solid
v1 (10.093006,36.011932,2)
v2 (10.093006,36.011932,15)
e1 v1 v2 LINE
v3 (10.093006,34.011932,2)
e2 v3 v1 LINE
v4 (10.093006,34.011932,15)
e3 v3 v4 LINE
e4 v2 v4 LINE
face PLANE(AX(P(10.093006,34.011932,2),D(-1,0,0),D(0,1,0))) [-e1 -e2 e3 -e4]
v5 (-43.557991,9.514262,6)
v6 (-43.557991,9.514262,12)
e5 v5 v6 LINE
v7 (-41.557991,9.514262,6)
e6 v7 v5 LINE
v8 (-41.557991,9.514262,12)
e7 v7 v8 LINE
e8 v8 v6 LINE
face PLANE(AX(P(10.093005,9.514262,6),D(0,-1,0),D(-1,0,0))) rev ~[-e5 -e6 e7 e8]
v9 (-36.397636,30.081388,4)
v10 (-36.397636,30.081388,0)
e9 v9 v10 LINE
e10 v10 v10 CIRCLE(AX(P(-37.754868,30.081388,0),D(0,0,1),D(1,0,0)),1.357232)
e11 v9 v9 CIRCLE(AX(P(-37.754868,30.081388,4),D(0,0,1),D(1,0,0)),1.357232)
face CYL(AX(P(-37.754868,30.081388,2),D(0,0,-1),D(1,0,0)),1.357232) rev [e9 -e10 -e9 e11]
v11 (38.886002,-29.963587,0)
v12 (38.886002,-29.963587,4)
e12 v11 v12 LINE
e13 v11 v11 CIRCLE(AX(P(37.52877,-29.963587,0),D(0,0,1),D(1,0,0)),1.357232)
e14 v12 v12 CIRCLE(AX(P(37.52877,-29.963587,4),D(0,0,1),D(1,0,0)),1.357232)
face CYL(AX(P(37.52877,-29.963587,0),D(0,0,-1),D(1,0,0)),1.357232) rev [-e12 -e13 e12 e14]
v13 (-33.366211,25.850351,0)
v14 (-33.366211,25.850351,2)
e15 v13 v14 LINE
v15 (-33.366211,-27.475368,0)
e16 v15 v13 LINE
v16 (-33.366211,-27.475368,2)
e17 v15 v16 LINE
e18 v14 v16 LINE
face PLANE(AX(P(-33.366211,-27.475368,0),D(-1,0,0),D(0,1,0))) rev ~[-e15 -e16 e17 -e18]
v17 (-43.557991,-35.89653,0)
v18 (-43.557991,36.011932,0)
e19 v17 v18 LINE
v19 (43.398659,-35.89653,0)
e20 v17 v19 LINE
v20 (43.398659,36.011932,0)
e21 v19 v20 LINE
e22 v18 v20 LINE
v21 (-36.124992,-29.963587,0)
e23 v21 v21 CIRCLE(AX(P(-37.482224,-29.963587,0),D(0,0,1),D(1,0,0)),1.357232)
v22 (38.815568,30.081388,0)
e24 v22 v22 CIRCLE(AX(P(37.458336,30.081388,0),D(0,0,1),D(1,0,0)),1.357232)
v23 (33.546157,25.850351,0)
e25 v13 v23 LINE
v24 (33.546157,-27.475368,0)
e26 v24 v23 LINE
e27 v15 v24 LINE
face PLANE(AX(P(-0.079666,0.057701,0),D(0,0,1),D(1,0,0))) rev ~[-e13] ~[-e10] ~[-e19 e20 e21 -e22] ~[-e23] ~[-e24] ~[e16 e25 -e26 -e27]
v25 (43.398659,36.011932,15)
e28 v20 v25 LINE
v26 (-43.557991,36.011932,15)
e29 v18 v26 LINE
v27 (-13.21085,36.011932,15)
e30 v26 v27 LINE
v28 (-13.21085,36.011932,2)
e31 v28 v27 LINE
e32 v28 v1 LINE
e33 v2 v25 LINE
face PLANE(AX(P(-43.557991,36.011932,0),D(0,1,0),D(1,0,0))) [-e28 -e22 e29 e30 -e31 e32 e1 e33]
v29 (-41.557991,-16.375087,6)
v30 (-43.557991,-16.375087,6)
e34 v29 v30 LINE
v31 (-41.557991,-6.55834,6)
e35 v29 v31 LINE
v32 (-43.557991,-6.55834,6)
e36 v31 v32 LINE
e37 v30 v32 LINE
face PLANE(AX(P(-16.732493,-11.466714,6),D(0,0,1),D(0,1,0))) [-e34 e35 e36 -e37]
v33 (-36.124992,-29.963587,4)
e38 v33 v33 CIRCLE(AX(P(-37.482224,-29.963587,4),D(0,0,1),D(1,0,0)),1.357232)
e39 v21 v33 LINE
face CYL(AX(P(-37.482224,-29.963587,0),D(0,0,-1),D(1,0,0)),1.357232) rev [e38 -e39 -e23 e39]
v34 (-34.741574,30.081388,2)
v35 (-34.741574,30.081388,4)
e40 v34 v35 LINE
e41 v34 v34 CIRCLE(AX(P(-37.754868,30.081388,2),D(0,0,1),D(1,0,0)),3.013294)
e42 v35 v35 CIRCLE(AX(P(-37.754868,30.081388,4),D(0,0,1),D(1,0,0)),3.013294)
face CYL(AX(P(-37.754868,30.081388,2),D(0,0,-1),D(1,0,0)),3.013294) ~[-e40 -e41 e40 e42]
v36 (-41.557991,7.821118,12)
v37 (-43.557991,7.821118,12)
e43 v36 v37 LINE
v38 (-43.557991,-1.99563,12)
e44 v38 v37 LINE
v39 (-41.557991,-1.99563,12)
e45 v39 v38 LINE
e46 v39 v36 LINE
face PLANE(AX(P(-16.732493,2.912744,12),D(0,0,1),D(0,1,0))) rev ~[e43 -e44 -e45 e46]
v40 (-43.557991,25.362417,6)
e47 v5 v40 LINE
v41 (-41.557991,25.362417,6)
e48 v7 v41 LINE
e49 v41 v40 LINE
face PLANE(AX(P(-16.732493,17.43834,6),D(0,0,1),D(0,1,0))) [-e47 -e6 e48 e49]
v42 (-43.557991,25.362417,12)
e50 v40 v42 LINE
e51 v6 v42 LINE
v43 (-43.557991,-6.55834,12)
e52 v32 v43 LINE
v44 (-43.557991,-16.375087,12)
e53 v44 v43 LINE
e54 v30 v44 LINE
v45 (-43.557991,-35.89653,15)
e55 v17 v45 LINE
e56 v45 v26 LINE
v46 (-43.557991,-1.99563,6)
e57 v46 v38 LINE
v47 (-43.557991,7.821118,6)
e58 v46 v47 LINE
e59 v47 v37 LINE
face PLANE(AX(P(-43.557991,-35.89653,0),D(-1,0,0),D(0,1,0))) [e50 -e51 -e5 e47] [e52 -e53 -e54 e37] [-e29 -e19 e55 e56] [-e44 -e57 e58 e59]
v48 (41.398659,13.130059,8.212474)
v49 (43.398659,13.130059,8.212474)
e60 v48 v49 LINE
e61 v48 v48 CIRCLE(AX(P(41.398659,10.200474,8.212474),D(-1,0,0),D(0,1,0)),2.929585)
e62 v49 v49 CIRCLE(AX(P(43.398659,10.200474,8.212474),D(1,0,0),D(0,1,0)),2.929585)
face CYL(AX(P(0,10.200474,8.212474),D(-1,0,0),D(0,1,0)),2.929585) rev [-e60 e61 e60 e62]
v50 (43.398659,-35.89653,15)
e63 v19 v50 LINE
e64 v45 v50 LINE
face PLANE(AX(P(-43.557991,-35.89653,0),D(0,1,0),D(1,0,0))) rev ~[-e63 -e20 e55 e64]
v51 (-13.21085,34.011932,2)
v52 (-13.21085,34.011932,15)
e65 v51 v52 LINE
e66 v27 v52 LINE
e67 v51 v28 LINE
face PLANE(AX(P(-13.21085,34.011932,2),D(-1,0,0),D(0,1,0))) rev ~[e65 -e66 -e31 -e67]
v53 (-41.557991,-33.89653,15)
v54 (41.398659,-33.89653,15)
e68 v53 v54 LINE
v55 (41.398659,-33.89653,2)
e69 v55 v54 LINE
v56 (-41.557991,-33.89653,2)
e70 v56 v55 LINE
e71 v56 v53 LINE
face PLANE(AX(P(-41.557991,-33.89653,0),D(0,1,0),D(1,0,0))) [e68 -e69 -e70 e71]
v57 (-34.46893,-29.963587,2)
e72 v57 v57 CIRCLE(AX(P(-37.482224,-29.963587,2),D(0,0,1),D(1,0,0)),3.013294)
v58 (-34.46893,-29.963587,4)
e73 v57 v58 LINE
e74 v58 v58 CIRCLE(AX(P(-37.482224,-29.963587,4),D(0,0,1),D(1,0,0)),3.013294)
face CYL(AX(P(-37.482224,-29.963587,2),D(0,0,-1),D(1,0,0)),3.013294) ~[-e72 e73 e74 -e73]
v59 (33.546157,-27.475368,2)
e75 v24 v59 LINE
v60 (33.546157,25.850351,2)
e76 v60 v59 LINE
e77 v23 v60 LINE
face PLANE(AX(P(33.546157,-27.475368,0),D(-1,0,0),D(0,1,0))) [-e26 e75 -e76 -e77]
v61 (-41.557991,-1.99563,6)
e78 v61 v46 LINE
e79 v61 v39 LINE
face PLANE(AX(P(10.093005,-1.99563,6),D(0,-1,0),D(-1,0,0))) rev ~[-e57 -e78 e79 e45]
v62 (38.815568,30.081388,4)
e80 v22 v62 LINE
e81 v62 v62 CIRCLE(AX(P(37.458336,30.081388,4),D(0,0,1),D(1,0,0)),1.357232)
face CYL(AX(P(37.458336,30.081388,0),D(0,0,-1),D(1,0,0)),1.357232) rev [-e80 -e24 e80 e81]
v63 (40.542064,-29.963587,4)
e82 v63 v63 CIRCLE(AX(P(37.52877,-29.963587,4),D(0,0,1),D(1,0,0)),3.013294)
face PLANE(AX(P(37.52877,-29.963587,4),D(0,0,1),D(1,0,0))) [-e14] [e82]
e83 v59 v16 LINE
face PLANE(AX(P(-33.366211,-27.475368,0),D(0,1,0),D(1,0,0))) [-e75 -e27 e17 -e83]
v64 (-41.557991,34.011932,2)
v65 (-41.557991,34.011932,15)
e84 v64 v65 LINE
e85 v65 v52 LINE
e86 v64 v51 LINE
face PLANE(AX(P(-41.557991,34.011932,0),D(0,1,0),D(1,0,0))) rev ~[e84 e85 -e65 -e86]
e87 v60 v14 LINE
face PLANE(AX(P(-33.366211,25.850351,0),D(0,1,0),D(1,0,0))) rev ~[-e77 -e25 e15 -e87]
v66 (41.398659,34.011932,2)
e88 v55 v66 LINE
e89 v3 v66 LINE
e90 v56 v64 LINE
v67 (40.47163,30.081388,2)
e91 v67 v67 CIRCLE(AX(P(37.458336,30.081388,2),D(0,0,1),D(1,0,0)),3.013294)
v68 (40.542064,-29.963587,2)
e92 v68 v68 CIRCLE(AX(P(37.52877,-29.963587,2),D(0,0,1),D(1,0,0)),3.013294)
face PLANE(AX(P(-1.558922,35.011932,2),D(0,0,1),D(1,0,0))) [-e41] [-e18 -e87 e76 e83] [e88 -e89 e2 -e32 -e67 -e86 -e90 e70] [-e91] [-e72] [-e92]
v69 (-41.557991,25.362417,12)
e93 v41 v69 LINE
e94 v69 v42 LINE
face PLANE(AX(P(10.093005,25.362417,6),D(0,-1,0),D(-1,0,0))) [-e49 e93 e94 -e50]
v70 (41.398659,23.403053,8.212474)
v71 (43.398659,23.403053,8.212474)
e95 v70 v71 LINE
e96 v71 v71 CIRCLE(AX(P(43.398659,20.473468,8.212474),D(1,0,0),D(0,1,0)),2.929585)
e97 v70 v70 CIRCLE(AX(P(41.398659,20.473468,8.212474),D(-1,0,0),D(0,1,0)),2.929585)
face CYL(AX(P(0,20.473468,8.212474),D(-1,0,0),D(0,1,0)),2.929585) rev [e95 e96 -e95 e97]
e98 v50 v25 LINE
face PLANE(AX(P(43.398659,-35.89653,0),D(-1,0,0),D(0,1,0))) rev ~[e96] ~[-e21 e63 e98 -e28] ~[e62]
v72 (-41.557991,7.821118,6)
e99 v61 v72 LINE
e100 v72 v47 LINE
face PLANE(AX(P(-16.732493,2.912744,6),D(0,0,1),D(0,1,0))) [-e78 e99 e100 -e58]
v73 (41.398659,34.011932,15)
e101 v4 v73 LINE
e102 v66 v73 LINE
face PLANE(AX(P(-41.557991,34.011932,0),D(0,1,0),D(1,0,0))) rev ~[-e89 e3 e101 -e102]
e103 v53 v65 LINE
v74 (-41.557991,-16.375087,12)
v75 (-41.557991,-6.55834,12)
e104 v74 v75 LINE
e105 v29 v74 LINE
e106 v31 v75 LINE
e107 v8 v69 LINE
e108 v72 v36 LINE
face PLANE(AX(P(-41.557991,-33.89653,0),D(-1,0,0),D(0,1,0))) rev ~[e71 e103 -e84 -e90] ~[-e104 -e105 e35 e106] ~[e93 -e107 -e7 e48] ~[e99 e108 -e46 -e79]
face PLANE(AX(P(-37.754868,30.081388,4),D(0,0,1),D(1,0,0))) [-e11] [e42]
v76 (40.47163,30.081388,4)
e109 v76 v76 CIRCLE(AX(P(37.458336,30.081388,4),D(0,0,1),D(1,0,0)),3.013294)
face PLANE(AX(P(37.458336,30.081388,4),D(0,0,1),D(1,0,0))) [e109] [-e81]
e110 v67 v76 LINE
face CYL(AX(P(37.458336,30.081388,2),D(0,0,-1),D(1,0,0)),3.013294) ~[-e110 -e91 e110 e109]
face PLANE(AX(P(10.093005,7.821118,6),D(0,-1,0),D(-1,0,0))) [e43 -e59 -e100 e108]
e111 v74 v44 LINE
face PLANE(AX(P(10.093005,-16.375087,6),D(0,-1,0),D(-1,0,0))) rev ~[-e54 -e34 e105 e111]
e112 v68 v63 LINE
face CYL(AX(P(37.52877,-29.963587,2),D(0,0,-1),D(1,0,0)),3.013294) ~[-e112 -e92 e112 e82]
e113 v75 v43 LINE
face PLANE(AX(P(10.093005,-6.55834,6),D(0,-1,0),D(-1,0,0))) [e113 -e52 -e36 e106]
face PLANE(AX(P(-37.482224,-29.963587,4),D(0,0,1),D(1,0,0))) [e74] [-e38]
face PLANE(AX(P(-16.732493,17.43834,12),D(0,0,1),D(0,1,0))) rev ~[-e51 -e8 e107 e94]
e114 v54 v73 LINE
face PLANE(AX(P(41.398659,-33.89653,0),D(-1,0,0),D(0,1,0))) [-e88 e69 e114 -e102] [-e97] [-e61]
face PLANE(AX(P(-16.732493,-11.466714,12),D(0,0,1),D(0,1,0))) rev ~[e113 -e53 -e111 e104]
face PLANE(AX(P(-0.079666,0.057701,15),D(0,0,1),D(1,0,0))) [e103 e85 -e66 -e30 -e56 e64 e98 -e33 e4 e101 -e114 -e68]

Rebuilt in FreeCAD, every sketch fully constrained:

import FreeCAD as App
import Part
import Sketcher
Q = App.Units.Quantity


def add_polygon(sketch, points):
    """Adds a closed chain of lines whose ends are joined by coincident constraints."""
    first, n = sketch.GeometryCount, len(points)
    for a, b in zip(points, points[1:] + points[:1]):
        sketch.addGeometry(Part.LineSegment(App.Vector(*a, 0), App.Vector(*b, 0)), False)
    for i in range(n):
        sketch.addConstraint(Sketcher.Constraint("Coincident", first + i, 2, first + (i + 1) % n, 1))

doc = App.newDocument("Part")
body = doc.addObject("PartDesign::Body", "Body")

sketch1 = body.newObject("Sketcher::SketchObject", "Sketch")
sketch1.AttachmentSupport = (doc.getObject("XY_Plane"), [""])
sketch1.MapMode = "FlatFace"
add_polygon(sketch1, [(-41.6, 34), (-41.6, -33.9), (41.4, -33.9), (41.4, 34)])
sketch1.addGeometry(Part.Circle(App.Vector(-37.5, -30, 0), App.Vector(0, 0, 1), 1.4), False)
sketch1.addGeometry(Part.Circle(App.Vector(37.5, -30, 0), App.Vector(0, 0, 1), 1.4), False)
sketch1.addGeometry(Part.Circle(App.Vector(-37.8, 30.1, 0), App.Vector(0, 0, 1), 1.4), False)
sketch1.addGeometry(Part.Circle(App.Vector(37.5, 30.1, 0), App.Vector(0, 0, 1), 1.4), False)
sketch1.addConstraint([
    Sketcher.Constraint("Vertical", 0),
    Sketcher.Constraint("Horizontal", 1),
    Sketcher.Constraint("Vertical", 2),
    Sketcher.Constraint("Horizontal", 3),
    Sketcher.Constraint("Equal", 4, 5),
    Sketcher.Constraint("Equal", 5, 6),
    Sketcher.Constraint("Equal", 6, 7),
    Sketcher.Constraint("Horizontal", 4, 3, 5, 3),
    Sketcher.Constraint("Horizontal", 6, 3, 7, 3),
    Sketcher.Constraint("Diameter", 4, Q("2.714464 mm")),
    Sketcher.Constraint("DistanceX", 1, 1, 1, 2, Q("82.95665 mm")),
    Sketcher.Constraint("DistanceY", 0, 2, 0, 1, Q("67.908462 mm")),
    Sketcher.Constraint("DistanceX", -1, 1, 5, 3, Q("37.52877 mm")),
    Sketcher.Constraint("DistanceX", 6, 3, -1, 1, Q("37.754868 mm")),
    Sketcher.Constraint("DistanceY", -1, 1, 6, 3, Q("30.081388 mm")),
    Sketcher.Constraint("DistanceX", 0, 2, -1, 1, Q("41.557991 mm")),
    Sketcher.Constraint("DistanceY", 0, 2, -1, 1, Q("33.89653 mm")),
    Sketcher.Constraint("DistanceX", 4, 3, 7, 3, Q("74.94056 mm")),
    Sketcher.Constraint("DistanceY", 5, 3, 2, 2, Q("63.975519 mm")),
    Sketcher.Constraint("DistanceX", 4, 3, -1, 1, Q("37.482224 mm")),
])
pad1 = body.newObject("PartDesign::Pad", "Pad")
pad1.Profile = sketch1
pad1.Length = 2

sketch2 = body.newObject("Sketcher::SketchObject", "Sketch001")
sketch2.AttachmentSupport = (doc.getObject("XY_Plane"), [""])
sketch2.MapMode = "FlatFace"
sketch2.AttachmentOffset = App.Placement(App.Vector(0, 0, 2), App.Rotation())
sketch2.addGeometry([
    Part.Circle(App.Vector(-37.8, 30.1, 0), App.Vector(0, 0, 1), 3),
    Part.Circle(App.Vector(-37.8, 30.1, 0), App.Vector(0, 0, 1), 1.4),
    Part.Circle(App.Vector(37.5, 30.1, 0), App.Vector(0, 0, 1), 3),
    Part.Circle(App.Vector(37.5, 30.1, 0), App.Vector(0, 0, 1), 1.4),
    Part.Circle(App.Vector(37.5, -30, 0), App.Vector(0, 0, 1), 3),
    Part.Circle(App.Vector(37.5, -30, 0), App.Vector(0, 0, 1), 1.4),
    Part.Circle(App.Vector(-37.5, -30, 0), App.Vector(0, 0, 1), 3),
    Part.Circle(App.Vector(-37.5, -30, 0), App.Vector(0, 0, 1), 1.4),
], False)
sketch2.addConstraint([
    Sketcher.Constraint("Coincident", 1, 3, 0, 3),
    Sketcher.Constraint("Coincident", 3, 3, 2, 3),
    Sketcher.Constraint("Coincident", 5, 3, 4, 3),
    Sketcher.Constraint("Coincident", 7, 3, 6, 3),
    Sketcher.Constraint("Equal", 0, 2),
    Sketcher.Constraint("Equal", 1, 3),
    Sketcher.Constraint("Equal", 2, 4),
    Sketcher.Constraint("Equal", 3, 5),
    Sketcher.Constraint("Equal", 4, 6),
    Sketcher.Constraint("Equal", 5, 7),
    Sketcher.Constraint("Horizontal", 1, 3, 2, 3),
    Sketcher.Constraint("Horizontal", 5, 3, 6, 3),
    Sketcher.Constraint("Diameter", 0, Q("6.026588 mm")),
    Sketcher.Constraint("Diameter", 1, Q("2.714464 mm")),
    Sketcher.Constraint("DistanceX", 0, 3, -1, 1, Q("37.754868 mm")),
    Sketcher.Constraint("DistanceY", -1, 1, 0, 3, Q("30.081388 mm")),
    Sketcher.Constraint("DistanceX", -1, 1, 4, 3, Q("37.52877 mm")),
    Sketcher.Constraint("DistanceX", 6, 3, 2, 3, Q("74.94056 mm")),
    Sketcher.Constraint("DistanceX", -1, 1, 2, 3, Q("37.458336 mm")),
    Sketcher.Constraint("DistanceY", 4, 3, -1, 1, Q("29.963587 mm")),
])
pad2 = body.newObject("PartDesign::Pad", "Pad001")
pad2.Profile = sketch2
pad2.Length = 2

sketch3 = body.newObject("Sketcher::SketchObject", "Sketch002")
sketch3.AttachmentSupport = (doc.getObject("XY_Plane"), [""])
sketch3.MapMode = "FlatFace"
add_polygon(sketch3, [(-44, 36), (-44, -36), (43, -36), (43, 36)])
add_polygon(sketch3, [(41, -34), (-42, -34), (-42, 34), (41, 34)])
sketch3.addConstraint([
    Sketcher.Constraint("Vertical", 0),
    Sketcher.Constraint("Horizontal", 1),
    Sketcher.Constraint("Vertical", 2),
    Sketcher.Constraint("Horizontal", 3),
    Sketcher.Constraint("Horizontal", 4),
    Sketcher.Constraint("Vertical", 5),
    Sketcher.Constraint("Horizontal", 6),
    Sketcher.Constraint("Vertical", 7),
    Sketcher.Constraint("DistanceX", 0, 2, 4, 2, Q("2 mm")),
    Sketcher.Constraint("DistanceY", 0, 2, 4, 2, Q("2 mm")),
    Sketcher.Constraint("DistanceY", 5, 2, 3, 2, Q("2 mm")),
    Sketcher.Constraint("DistanceX", 6, 2, 2, 2, Q("2 mm")),
    Sketcher.Constraint("DistanceX", 1, 1, 1, 2, Q("86.95665 mm")),
    Sketcher.Constraint("DistanceY", 0, 2, 0, 1, Q("71.908462 mm")),
    Sketcher.Constraint("DistanceX", 0, 2, -1, 1, Q("43.557991 mm")),
    Sketcher.Constraint("DistanceY", 0, 2, -1, 1, Q("35.89653 mm")),
])
pad3 = body.newObject("PartDesign::Pad", "Pad002")
pad3.Profile = sketch3
pad3.Length = 15

sketch4 = body.newObject("Sketcher::SketchObject", "Sketch003")
sketch4.AttachmentSupport = (doc.getObject("XY_Plane"), [""])
sketch4.MapMode = "FlatFace"
sketch4.AttachmentOffset = App.Placement(App.Vector(0, 0, 2), App.Rotation())
add_polygon(sketch4, [(-13.2, 36), (-13.2, 34), (10.1, 34), (10.1, 36)])
sketch4.addConstraint([
    Sketcher.Constraint("Vertical", 0),
    Sketcher.Constraint("Horizontal", 1),
    Sketcher.Constraint("Vertical", 2),
    Sketcher.Constraint("Horizontal", 3),
    Sketcher.Constraint("DistanceY", 0, 2, 0, 1, Q("2 mm")),
    Sketcher.Constraint("DistanceX", 1, 1, 1, 2, Q("23.303855 mm")),
    Sketcher.Constraint("DistanceX", 0, 2, -1, 1, Q("13.21085 mm")),
    Sketcher.Constraint("DistanceY", -1, 1, 0, 2, Q("34.011932 mm")),
])
pocket1 = body.newObject("PartDesign::Pocket", "Pocket")
pocket1.Profile = sketch4
pocket1.Length = 15
pocket1.Reversed = True

sketch5 = body.newObject("Sketcher::SketchObject", "Sketch004")
sketch5.AttachmentSupport = (doc.getObject("XY_Plane"), [""])
sketch5.MapMode = "FlatFace"
sketch5.AttachmentOffset = App.Placement(App.Vector(0, 0, 6), App.Rotation())
add_polygon(sketch5, [(-44, -16), (10, -16), (10, -7), (-44, -7)])
add_polygon(sketch5, [(-44, -2), (10, -2), (10, 8), (-44, 8)])
add_polygon(sketch5, [(-44, 10), (10, 10), (10, 25), (-44, 25)])
sketch5.addConstraint([
    Sketcher.Constraint("Horizontal", 0),
    Sketcher.Constraint("Vertical", 1),
    Sketcher.Constraint("Horizontal", 2),
    Sketcher.Constraint("Vertical", 3),
    Sketcher.Constraint("Horizontal", 4),
    Sketcher.Constraint("Vertical", 5),
    Sketcher.Constraint("Horizontal", 6),
    Sketcher.Constraint("Vertical", 7),
    Sketcher.Constraint("Horizontal", 8),
    Sketcher.Constraint("Vertical", 9),
    Sketcher.Constraint("Horizontal", 10),
    Sketcher.Constraint("Vertical", 11),
    Sketcher.Constraint("Vertical", 1, 2, 4, 2),
    Sketcher.Constraint("Vertical", 3, 2, 6, 2),
    Sketcher.Constraint("Vertical", 5, 2, 8, 2),
    Sketcher.Constraint("Vertical", 7, 2, 10, 2),
    Sketcher.Constraint("Equal", 3, 5),
    Sketcher.Constraint("DistanceY", 5, 2, 9, 2, Q("17.5413 mm")),
    Sketcher.Constraint("DistanceX", 0, 1, 0, 2, Q("53.650996 mm")),
    Sketcher.Constraint("DistanceY", 1, 1, 1, 2, Q("9.816747 mm")),
    Sketcher.Constraint("DistanceY", 9, 1, 9, 2, Q("15.848155 mm")),
    Sketcher.Constraint("DistanceY", 1, 2, -1, 1, Q("6.55834 mm")),
    Sketcher.Constraint("DistanceX", 2, 2, -1, 1, Q("43.557991 mm")),
    Sketcher.Constraint("DistanceY", 4, 2, -1, 1, Q("1.99563 mm")),
])
pocket2 = body.newObject("PartDesign::Pocket", "Pocket001")
pocket2.Profile = sketch5
pocket2.Length = 6
pocket2.Reversed = True

sketch6 = body.newObject("Sketcher::SketchObject", "Sketch005")
sketch6.AttachmentSupport = (doc.getObject("YZ_Plane"), [""])
sketch6.MapMode = "FlatFace"
sketch6.addGeometry([
    Part.Circle(App.Vector(10.2, 8.2, 0), App.Vector(0, 0, 1), 2.9),
    Part.Circle(App.Vector(20.5, 8.2, 0), App.Vector(0, 0, 1), 2.9),
], False)
sketch6.addConstraint([
    Sketcher.Constraint("Equal", 0, 1),
    Sketcher.Constraint("Horizontal", 0, 3, 1, 3),
    Sketcher.Constraint("Diameter", 0, Q("5.85917 mm")),
    Sketcher.Constraint("DistanceX", -1, 1, 1, 3, Q("20.473468 mm")),
    Sketcher.Constraint("DistanceX", -1, 1, 0, 3, Q("10.200474 mm")),
    Sketcher.Constraint("DistanceY", -1, 1, 0, 3, Q("8.212474 mm")),
])
pocket3 = body.newObject("PartDesign::Pocket", "Pocket002")
pocket3.Profile = sketch6
pocket3.Length = 43.398659
pocket3.Reversed = True

sketch7 = body.newObject("Sketcher::SketchObject", "Sketch006")
sketch7.AttachmentSupport = (doc.getObject("XY_Plane"), [""])
sketch7.MapMode = "FlatFace"
add_polygon(sketch7, [(-33, 26), (-33, -27), (34, -27), (34, 26)])
sketch7.addConstraint([
    Sketcher.Constraint("Vertical", 0),
    Sketcher.Constraint("Horizontal", 1),
    Sketcher.Constraint("Vertical", 2),
    Sketcher.Constraint("Horizontal", 3),
    Sketcher.Constraint("DistanceX", 1, 1, 1, 2, Q("66.912369 mm")),
    Sketcher.Constraint("DistanceY", 0, 2, 0, 1, Q("53.325719 mm")),
    Sketcher.Constraint("DistanceX", 0, 2, -1, 1, Q("33.366211 mm")),
    Sketcher.Constraint("DistanceY", -1, 1, 2, 2, Q("25.850351 mm")),
])
pocket4 = body.newObject("PartDesign::Pocket", "Pocket003")
pocket4.Profile = sketch7
pocket4.Length = 5
pocket4.Reversed = True

doc.recompute()
